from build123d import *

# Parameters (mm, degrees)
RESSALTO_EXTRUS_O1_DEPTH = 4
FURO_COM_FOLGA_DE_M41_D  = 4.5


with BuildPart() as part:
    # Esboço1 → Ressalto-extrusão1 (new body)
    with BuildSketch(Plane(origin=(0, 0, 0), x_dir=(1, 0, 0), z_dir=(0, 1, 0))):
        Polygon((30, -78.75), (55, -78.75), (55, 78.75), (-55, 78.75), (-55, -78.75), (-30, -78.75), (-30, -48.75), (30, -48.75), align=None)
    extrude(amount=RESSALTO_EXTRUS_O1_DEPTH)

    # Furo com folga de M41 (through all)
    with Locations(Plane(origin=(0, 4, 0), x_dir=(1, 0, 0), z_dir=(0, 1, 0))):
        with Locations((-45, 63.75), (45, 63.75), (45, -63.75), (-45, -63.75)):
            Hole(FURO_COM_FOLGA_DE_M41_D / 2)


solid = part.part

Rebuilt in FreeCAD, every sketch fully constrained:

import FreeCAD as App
import Part
import Sketcher
Q = App.Units.Quantity


def add_polygon(sketch, points):
    """Adds a closed chain of lines whose ends are joined by coincident constraints."""
    first, n = sketch.GeometryCount, len(points)
    for a, b in zip(points, points[1:] + points[:1]):
        sketch.addGeometry(Part.LineSegment(App.Vector(*a, 0), App.Vector(*b, 0)), False)
    for i in range(n):
        sketch.addConstraint(Sketcher.Constraint("Coincident", first + i, 2, first + (i + 1) % n, 1))

doc = App.newDocument("Part")
body = doc.addObject("PartDesign::Body", "Body")

sketch1 = doc.addObject("Sketcher::SketchObject", "Sketch")
body.addObject(sketch1)
sketch1.AttachmentSupport = (doc.XZ_Plane, [""])
sketch1.MapMode = "FlatFace"
add_polygon(sketch1, [(30, 79), (55, 79), (55, -79), (-55, -79), (-55, 79), (-30, 79), (-30, 49), (30, 49)])
sketch1.addConstraint([
    Sketcher.Constraint("Horizontal", 0),
    Sketcher.Constraint("Vertical", 1),
    Sketcher.Constraint("Horizontal", 2),
    Sketcher.Constraint("Vertical", 3),
    Sketcher.Constraint("Horizontal", 4),
    Sketcher.Constraint("Vertical", 5),
    Sketcher.Constraint("Horizontal", 6),
    Sketcher.Constraint("Vertical", 7),
    Sketcher.Constraint("Symmetric", 0, 2, 2, 2, -1, 1),
    Sketcher.Constraint("Symmetric", 4, 2, 7, 2, -2),
    Sketcher.Constraint("DistanceX", 0, 1, 0, 2, Q("25 mm")),
    Sketcher.Constraint("DistanceX", 2, 2, 2, 1, Q("110 mm")),
    Sketcher.Constraint("DistanceY", 5, 2, 5, 1, Q("30 mm")),
    Sketcher.Constraint("DistanceY", 1, 2, 1, 1, Q("157.5 mm")),
])
pad1 = doc.addObject("PartDesign::Pad", "Pad")
body.addObject(pad1)
pad1.Profile = sketch1
pad1.Length = 4
pad1.Reversed = True

sketch2 = doc.addObject("Sketcher::SketchObject", "Sketch001")
body.addObject(sketch2)
sketch2.AttachmentSupport = (doc.XZ_Plane, [""])
sketch2.MapMode = "FlatFace"
sketch2.AttachmentOffset = App.Placement(App.Vector(0, 0, -4), App.Rotation())
sketch2.addGeometry([
    Part.Circle(App.Vector(-45, -63.8, 0), App.Vector(0, 0, 1), 2.2),
    Part.Circle(App.Vector(45, -63.8, 0), App.Vector(0, 0, 1), 2.2),
    Part.Circle(App.Vector(45, 63.8, 0), App.Vector(0, 0, 1), 2.2),
    Part.Circle(App.Vector(-45, 63.8, 0), App.Vector(0, 0, 1), 2.2),
], False)
sketch2.addConstraint([
    Sketcher.Constraint("Equal", 0, 1),
    Sketcher.Constraint("Equal", 1, 2),
    Sketcher.Constraint("Equal", 2, 3),
    Sketcher.Constraint("Symmetric", 0, 3, 2, 3, -1, 1),
    Sketcher.Constraint("Symmetric", 1, 3, 3, 3, -1, 1),
    Sketcher.Constraint("Symmetric", 0, 3, 1, 3, -2),
    Sketcher.Constraint("Diameter", 0, Q("4.5 mm")),
    Sketcher.Constraint("DistanceX", 0, 3, -1, 1, Q("45 mm")),
    Sketcher.Constraint("DistanceY", 1, 3, 2, 3, Q("127.5 mm")),
])
doc.recompute()
hole = doc.addObject("PartDesign::Hole", "Hole")
body.addObject(hole)
hole.Profile = sketch2
hole.ThreadType = "None"
hole.Diameter = 4.5
hole.DepthType = "ThroughAll"
hole.Reversed = True

doc.recompute()
